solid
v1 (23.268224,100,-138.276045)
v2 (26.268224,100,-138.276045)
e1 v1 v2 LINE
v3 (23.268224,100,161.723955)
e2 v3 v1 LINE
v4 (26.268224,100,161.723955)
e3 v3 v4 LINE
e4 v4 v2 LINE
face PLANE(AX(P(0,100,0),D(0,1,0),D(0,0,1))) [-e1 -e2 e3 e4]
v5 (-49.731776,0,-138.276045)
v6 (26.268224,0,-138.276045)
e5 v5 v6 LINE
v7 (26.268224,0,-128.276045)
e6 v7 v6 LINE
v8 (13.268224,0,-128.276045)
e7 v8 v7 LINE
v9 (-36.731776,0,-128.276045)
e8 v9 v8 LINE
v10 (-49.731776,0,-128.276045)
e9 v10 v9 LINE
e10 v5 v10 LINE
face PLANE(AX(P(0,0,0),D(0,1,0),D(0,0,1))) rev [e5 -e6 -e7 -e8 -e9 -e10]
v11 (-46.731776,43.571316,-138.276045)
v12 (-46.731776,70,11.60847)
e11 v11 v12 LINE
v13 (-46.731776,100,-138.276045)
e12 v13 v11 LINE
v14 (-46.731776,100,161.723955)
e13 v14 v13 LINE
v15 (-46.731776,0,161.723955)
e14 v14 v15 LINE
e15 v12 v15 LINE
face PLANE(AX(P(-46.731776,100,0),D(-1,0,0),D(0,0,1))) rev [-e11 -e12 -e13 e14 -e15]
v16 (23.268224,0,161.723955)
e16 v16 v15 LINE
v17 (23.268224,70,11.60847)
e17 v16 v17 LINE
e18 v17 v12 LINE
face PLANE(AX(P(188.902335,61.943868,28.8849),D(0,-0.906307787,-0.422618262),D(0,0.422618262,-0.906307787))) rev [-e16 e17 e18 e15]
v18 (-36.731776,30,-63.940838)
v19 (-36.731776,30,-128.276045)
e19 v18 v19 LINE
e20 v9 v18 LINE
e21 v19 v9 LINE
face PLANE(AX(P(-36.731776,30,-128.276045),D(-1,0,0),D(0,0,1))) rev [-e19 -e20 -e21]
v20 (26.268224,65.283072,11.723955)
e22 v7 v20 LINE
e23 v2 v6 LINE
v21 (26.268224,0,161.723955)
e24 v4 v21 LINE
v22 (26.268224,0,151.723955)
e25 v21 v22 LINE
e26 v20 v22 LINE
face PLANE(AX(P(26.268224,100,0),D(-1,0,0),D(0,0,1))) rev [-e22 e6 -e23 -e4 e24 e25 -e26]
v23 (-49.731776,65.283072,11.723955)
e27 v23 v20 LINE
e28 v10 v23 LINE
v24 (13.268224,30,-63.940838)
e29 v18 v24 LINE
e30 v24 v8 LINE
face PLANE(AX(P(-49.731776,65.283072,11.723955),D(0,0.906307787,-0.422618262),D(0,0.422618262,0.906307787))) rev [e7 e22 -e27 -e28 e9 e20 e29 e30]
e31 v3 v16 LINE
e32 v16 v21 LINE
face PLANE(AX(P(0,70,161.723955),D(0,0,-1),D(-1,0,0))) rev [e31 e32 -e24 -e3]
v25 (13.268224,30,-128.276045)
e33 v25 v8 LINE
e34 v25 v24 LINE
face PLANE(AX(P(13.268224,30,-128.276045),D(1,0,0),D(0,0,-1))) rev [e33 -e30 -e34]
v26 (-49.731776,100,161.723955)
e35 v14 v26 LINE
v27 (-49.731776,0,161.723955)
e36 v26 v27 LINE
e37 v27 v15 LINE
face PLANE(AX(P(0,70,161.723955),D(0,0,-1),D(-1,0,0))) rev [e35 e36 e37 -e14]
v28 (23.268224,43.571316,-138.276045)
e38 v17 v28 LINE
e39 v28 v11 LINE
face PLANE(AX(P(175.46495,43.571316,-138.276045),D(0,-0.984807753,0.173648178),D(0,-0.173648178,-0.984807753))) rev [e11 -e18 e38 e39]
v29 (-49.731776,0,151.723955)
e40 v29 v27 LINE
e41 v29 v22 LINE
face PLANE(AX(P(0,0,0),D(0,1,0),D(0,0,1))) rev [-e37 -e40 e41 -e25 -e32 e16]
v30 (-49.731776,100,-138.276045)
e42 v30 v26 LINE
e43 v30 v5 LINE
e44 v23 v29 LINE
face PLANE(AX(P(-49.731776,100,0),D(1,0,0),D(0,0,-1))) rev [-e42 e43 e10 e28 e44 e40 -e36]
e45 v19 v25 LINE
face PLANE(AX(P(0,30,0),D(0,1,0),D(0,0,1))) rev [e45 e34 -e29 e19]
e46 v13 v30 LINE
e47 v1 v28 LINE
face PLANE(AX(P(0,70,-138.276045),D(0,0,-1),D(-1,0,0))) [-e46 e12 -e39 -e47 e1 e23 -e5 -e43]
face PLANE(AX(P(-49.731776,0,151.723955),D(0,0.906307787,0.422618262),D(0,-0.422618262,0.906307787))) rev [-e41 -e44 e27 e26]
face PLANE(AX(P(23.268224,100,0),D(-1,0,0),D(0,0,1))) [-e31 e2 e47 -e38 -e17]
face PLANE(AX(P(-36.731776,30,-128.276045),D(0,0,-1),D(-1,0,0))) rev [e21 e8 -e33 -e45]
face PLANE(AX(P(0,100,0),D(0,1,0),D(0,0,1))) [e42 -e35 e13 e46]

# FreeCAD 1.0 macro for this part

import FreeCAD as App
import Part
import Sketcher
from FreeCAD import Vector
Q = App.Units.Quantity

doc = App.newDocument("Part")
body = doc.addObject("PartDesign::Body", "Body")

# Sketch on XZ plane
sketch1 = body.newObject("Sketcher::SketchObject", "Sketch")
sketch1.AttachmentSupport = (doc.getObject("XZ_Plane"), [""])
sketch1.MapMode = "FlatFace"
sketch1.addGeometry([
    Part.LineSegment(Vector(-46.731776, -138.276045, 0), Vector(-46.731776, 161.723955, 0)),
    Part.LineSegment(Vector(-46.731776, 161.723955, 0), Vector(23.268224, 161.723955, 0)),
    Part.LineSegment(Vector(23.268224, 161.723955, 0), Vector(23.268224, -138.276045, 0)),
    Part.LineSegment(Vector(23.268224, -138.276045, 0), Vector(-46.731776, -138.276045, 0)),
], False)
sketch1.addConstraint([
    Sketcher.Constraint("Coincident", 0, 2, 1, 1),
    Sketcher.Constraint("Coincident", 1, 2, 2, 1),
    Sketcher.Constraint("Coincident", 2, 2, 3, 1),
    Sketcher.Constraint("Coincident", 3, 2, 0, 1),
    Sketcher.Constraint("Vertical", 0),
    Sketcher.Constraint("Horizontal", 1),
    Sketcher.Constraint("Vertical", 2),
    Sketcher.Constraint("Horizontal", 3),
    Sketcher.Constraint("DistanceX", 1, 1, 1, 2, Q("70 mm")),
    Sketcher.Constraint("DistanceY", 0, 1, 0, 2, Q("300 mm")),
    Sketcher.Constraint("DistanceX", 0, 2, -1, 1, Q("46.731776 mm")),
    Sketcher.Constraint("DistanceY", -1, 1, 0, 2, Q("161.723955 mm")),
])
pad1 = body.newObject("PartDesign::Pad", "Pad")
pad1.Profile = sketch1
pad1.Length = 70
pad1.Reversed = True

# Sketch on XZ plane
sketch2 = body.newObject("Sketcher::SketchObject", "Sketch001")
sketch2.AttachmentSupport = (doc.getObject("XZ_Plane"), [""])
sketch2.MapMode = "FlatFace"
sketch2.addGeometry([
    Part.LineSegment(Vector(-49.731776, -138.276045, 0), Vector(-49.731776, 161.723955, 0)),  # 0
    Part.LineSegment(Vector(-49.731776, 161.723955, 0), Vector(-46.731776, 161.723955, 0)),  # 1
    Part.LineSegment(Vector(-46.731776, 161.723955, 0), Vector(-46.731776, -138.276045, 0)),  # 2
    Part.LineSegment(Vector(-46.731776, -138.276045, 0), Vector(-49.731776, -138.276045, 0)),  # 3
    Part.LineSegment(Vector(23.268224, -138.276045, 0), Vector(23.268224, 161.723955, 0)),  # 4
    Part.LineSegment(Vector(23.268224, 161.723955, 0), Vector(26.268224, 161.723955, 0)),  # 5
    Part.LineSegment(Vector(26.268224, 161.723955, 0), Vector(26.268224, -138.276045, 0)),  # 6
    Part.LineSegment(Vector(26.268224, -138.276045, 0), Vector(23.268224, -138.276045, 0)),  # 7
], False)
sketch2.addConstraint([
    Sketcher.Constraint("Coincident", 0, 2, 1, 1),
    Sketcher.Constraint("Coincident", 1, 2, 2, 1),
    Sketcher.Constraint("Coincident", 2, 2, 3, 1),
    Sketcher.Constraint("Coincident", 3, 2, 0, 1),
    Sketcher.Constraint("Coincident", 4, 2, 5, 1),
    Sketcher.Constraint("Coincident", 5, 2, 6, 1),
    Sketcher.Constraint("Coincident", 6, 2, 7, 1),
    Sketcher.Constraint("Coincident", 7, 2, 4, 1),
    Sketcher.Constraint("Vertical", 0),
    Sketcher.Constraint("Horizontal", 1),
    Sketcher.Constraint("Vertical", 2),
    Sketcher.Constraint("Horizontal", 3),
    Sketcher.Constraint("Vertical", 4),
    Sketcher.Constraint("Horizontal", 5),
    Sketcher.Constraint("Vertical", 6),
    Sketcher.Constraint("Horizontal", 7),
    Sketcher.Constraint("Horizontal", 1, 2, 4, 2),
    Sketcher.Constraint("Horizontal", 3, 2, 6, 2),
    Sketcher.Constraint("Equal", 3, 5),
    Sketcher.Constraint("DistanceX", 1, 1, 1, 2, Q("3 mm")),
    Sketcher.Constraint("DistanceY", 0, 1, 0, 2, Q("300 mm")),
    Sketcher.Constraint("DistanceX", 1, 2, 4, 2, Q("70 mm")),
    Sketcher.Constraint("DistanceX", 0, 2, -1, 1, Q("49.731776 mm")),
    Sketcher.Constraint("DistanceY", -1, 1, 0, 2, Q("161.723955 mm")),
])
pad2 = body.newObject("PartDesign::Pad", "Pad001")
pad2.Profile = sketch2
pad2.Length = 100
pad2.Reversed = True

# Sketch on YZ plane
sketch3 = body.newObject("Sketcher::SketchObject", "Sketch002")
sketch3.AttachmentSupport = (doc.getObject("YZ_Plane"), [""])
sketch3.MapMode = "FlatFace"
sketch3.AttachmentOffset = App.Placement(Vector(0, 0, -46.731776), App.Rotation())
sketch3.addGeometry([
    Part.LineSegment(Vector(70, 161.723955, 0), Vector(70, 11.60847, 0)),
    Part.LineSegment(Vector(70, 11.60847, 0), Vector(0, 161.723955, 0)),
    Part.LineSegment(Vector(0, 161.723955, 0), Vector(70, 161.723955, 0)),
], False)
sketch3.addConstraint([
    Sketcher.Constraint("Coincident", 0, 2, 1, 1),
    Sketcher.Constraint("Coincident", 1, 2, 2, 1),
    Sketcher.Constraint("Coincident", 2, 2, 0, 1),
    Sketcher.Constraint("Vertical", 0),
    Sketcher.Constraint("Horizontal", 2),
    Sketcher.Constraint("PointOnObject", 1, 2, -2),
    Sketcher.Constraint("DistanceX", 2, 1, 2, 2, Q("70 mm")),
    Sketcher.Constraint("Angle", 1, Q("115 deg")),
    Sketcher.Constraint("DistanceY", -1, 1, 0, 2, Q("11.60847 mm")),
])
pocket1 = body.newObject("PartDesign::Pocket", "Pocket")
pocket1.Profile = sketch3
pocket1.Length = 70
pocket1.Reversed = True

# Sketch on YZ plane
sketch4 = body.newObject("Sketcher::SketchObject", "Sketch003")
sketch4.AttachmentSupport = (doc.getObject("YZ_Plane"), [""])
sketch4.MapMode = "FlatFace"
sketch4.AttachmentOffset = App.Placement(Vector(0, 0, -46.731776), App.Rotation())
sketch4.addGeometry([
    Part.LineSegment(Vector(70, 11.60847, 0), Vector(70, -138.276045, 0)),
    Part.LineSegment(Vector(70, -138.276045, 0), Vector(43.571316, -138.276045, 0)),
    Part.LineSegment(Vector(43.571316, -138.276045, 0), Vector(70, 11.60847, 0)),
], False)
sketch4.addConstraint([
    Sketcher.Constraint("Coincident", 0, 2, 1, 1),
    Sketcher.Constraint("Coincident", 1, 2, 2, 1),
    Sketcher.Constraint("Coincident", 2, 2, 0, 1),
    Sketcher.Constraint("Vertical", 0),
    Sketcher.Constraint("Horizontal", 1),
    Sketcher.Constraint("Angle", 2, Q("80 deg")),
    Sketcher.Constraint("DistanceX", -1, 1, 0, 2, Q("70 mm")),
    Sketcher.Constraint("DistanceX", 1, 2, 1, 1, Q("26.428684 mm")),
    Sketcher.Constraint("DistanceY", -1, 1, 2, 2, Q("11.60847 mm")),
])
pocket2 = body.newObject("PartDesign::Pocket", "Pocket001")
pocket2.Profile = sketch4
pocket2.Length = 70
pocket2.Reversed = True

# Sketch on YZ plane
sketch5 = body.newObject("Sketcher::SketchObject", "Sketch004")
sketch5.AttachmentSupport = (doc.getObject("YZ_Plane"), [""])
sketch5.MapMode = "FlatFace"
sketch5.AttachmentOffset = App.Placement(Vector(0, 0, 26.268224), App.Rotation())
sketch5.addGeometry([
    Part.LineSegment(Vector(65.283072, 11.723955, 0), Vector(0, 151.723955, 0)),
    Part.LineSegment(Vector(0, 151.723955, 0), Vector(0, -128.276045, 0)),
    Part.LineSegment(Vector(0, -128.276045, 0), Vector(65.283072, 11.723955, 0)),
], False)
sketch5.addConstraint([
    Sketcher.Constraint("Coincident", 0, 2, 1, 1),
    Sketcher.Constraint("Coincident", 1, 2, 2, 1),
    Sketcher.Constraint("Coincident", 2, 2, 0, 1),
    Sketcher.Constraint("Vertical", 1),
    Sketcher.Constraint("PointOnObject", 0, 2, -2),
    Sketcher.Constraint("Equal", 0, 2),
    Sketcher.Constraint("DistanceY", 1, 2, 1, 1, Q("280 mm")),
    Sketcher.Constraint("Angle", 0, Q("115 deg")),
    Sketcher.Constraint("DistanceY", -1, 1, 0, 2, Q("151.723955 mm")),
])
pocket3 = body.newObject("PartDesign::Pocket", "Pocket002")
pocket3.Profile = sketch5
pocket3.Type = "ThroughAll"

# Sketch on XZ plane
sketch6 = body.newObject("Sketcher::SketchObject", "Sketch005")
sketch6.AttachmentSupport = (doc.getObject("XZ_Plane"), [""])
sketch6.MapMode = "FlatFace"
sketch6.addGeometry([
    Part.LineSegment(Vector(-36.731776, -58.276045, 0), Vector(-36.731776, -128.276045, 0)),
    Part.LineSegment(Vector(-36.731776, -128.276045, 0), Vector(13.268224, -128.276045, 0)),
    Part.LineSegment(Vector(13.268224, -128.276045, 0), Vector(13.268224, -58.276045, 0)),
    Part.LineSegment(Vector(13.268224, -58.276045, 0), Vector(-36.731776, -58.276045, 0)),
], False)
sketch6.addConstraint([
    Sketcher.Constraint("Coincident", 0, 2, 1, 1),
    Sketcher.Constraint("Coincident", 1, 2, 2, 1),
    Sketcher.Constraint("Coincident", 2, 2, 3, 1),
    Sketcher.Constraint("Coincident", 3, 2, 0, 1),
    Sketcher.Constraint("Vertical", 0),
    Sketcher.Constraint("Horizontal", 1),
    Sketcher.Constraint("Vertical", 2),
    Sketcher.Constraint("Horizontal", 3),
    Sketcher.Constraint("DistanceX", 1, 1, 1, 2, Q("50 mm")),
    Sketcher.Constraint("DistanceY", 0, 2, 0, 1, Q("70 mm")),
    Sketcher.Constraint("DistanceX", 0, 2, -1, 1, Q("36.731776 mm")),
    Sketcher.Constraint("DistanceY", 0, 2, -1, 1, Q("128.276045 mm")),
])
pocket4 = body.newObject("PartDesign::Pocket", "Pocket003")
pocket4.Profile = sketch6
pocket4.Length = 30

doc.recompute()
